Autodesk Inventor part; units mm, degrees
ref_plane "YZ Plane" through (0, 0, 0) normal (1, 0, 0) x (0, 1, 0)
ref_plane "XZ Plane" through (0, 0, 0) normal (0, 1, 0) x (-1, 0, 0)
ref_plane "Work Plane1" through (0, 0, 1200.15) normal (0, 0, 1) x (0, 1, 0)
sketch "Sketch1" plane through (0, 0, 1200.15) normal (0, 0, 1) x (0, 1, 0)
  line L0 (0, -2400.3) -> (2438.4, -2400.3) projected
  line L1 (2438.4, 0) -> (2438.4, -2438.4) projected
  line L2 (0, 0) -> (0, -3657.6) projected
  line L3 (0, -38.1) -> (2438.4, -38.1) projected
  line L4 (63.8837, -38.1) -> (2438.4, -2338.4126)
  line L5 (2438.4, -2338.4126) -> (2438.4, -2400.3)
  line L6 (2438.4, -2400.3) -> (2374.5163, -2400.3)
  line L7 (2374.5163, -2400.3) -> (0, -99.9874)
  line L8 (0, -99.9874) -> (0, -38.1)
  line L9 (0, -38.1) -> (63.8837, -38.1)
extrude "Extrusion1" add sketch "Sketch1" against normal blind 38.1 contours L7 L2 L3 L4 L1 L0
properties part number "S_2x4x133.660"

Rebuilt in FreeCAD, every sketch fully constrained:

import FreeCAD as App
import Part
import Sketcher

V = App.Vector
Q = App.Units.Quantity

doc = App.newDocument("Part")
body = doc.addObject("PartDesign::Body", "Body")

sketch1 = body.newObject("Sketcher::SketchObject", "Sketch")
sketch1.AttachmentSupport = (doc.getObject("XY_Plane"), [""])
sketch1.MapMode = "FlatFace"
sketch1.AttachmentOffset = App.Placement(V(0, 0, 47.25 * 25.4), App.Rotation())
sketch1.addGeometry(Part.LineSegment(V(99.9874, 0, 0), V(2400.3, 2374.5163, 0)), False)
sketch1.addGeometry(Part.LineSegment(V(2400.3, 2374.5163, 0), V(2400.3, 2438.4, 0)), False)
sketch1.addGeometry(Part.LineSegment(V(2400.3, 2438.4, 0), V(2338.4126, 2438.4, 0)), False)
sketch1.addGeometry(Part.LineSegment(V(2338.4126, 2438.4, 0), V(38.1, 63.8837, 0)), False)
sketch1.addGeometry(Part.LineSegment(V(38.1, 63.8837, 0), V(38.1, 0, 0)), False)
sketch1.addGeometry(Part.LineSegment(V(38.1, 0, 0), V(99.9874, 0, 0)), False)
sketch1.addConstraint(Sketcher.Constraint("Coincident", 0, 2, 1, 1))
sketch1.addConstraint(Sketcher.Constraint("Coincident", 1, 2, 2, 1))
sketch1.addConstraint(Sketcher.Constraint("Coincident", 2, 2, 3, 1))
sketch1.addConstraint(Sketcher.Constraint("Coincident", 3, 2, 4, 1))
sketch1.addConstraint(Sketcher.Constraint("Coincident", 4, 2, 5, 1))
sketch1.addConstraint(Sketcher.Constraint("Coincident", 5, 2, 0, 1))
sketch1.addConstraint(Sketcher.Constraint("Vertical", 1))
sketch1.addConstraint(Sketcher.Constraint("Horizontal", 2))
sketch1.addConstraint(Sketcher.Constraint("Vertical", 4))
sketch1.addConstraint(Sketcher.Constraint("Horizontal", 5))
sketch1.addConstraint(Sketcher.Constraint("PointOnObject", 4, 2, -1))
sketch1.addConstraint(Sketcher.Constraint("Parallel", 0, 3))
sketch1.addConstraint(Sketcher.Constraint("Equal", 2, 5))
sketch1.addConstraint(Sketcher.Constraint("DistanceY", -1, 1, 1, 2, Q("96 in")))
sketch1.addConstraint(Sketcher.Constraint("DistanceX", 3, 2, 0, 2, Q("93 in")))
sketch1.addConstraint(Sketcher.Constraint("DistanceX", -1, 1, 0, 2, Q("94.5 in")))
sketch1.addConstraint(Sketcher.Constraint("Angle", 0, Q("45.9094 deg")))
sketch1.addConstraint(Sketcher.Constraint("DistanceX", 2, 2, 2, 1, Q("2.4365 in")))
pad1 = body.newObject("PartDesign::Pad", "Pad")
pad1.Profile = sketch1
pad1.Length = Q("1.5 in")
pad1.Reversed = True

doc.recompute()
